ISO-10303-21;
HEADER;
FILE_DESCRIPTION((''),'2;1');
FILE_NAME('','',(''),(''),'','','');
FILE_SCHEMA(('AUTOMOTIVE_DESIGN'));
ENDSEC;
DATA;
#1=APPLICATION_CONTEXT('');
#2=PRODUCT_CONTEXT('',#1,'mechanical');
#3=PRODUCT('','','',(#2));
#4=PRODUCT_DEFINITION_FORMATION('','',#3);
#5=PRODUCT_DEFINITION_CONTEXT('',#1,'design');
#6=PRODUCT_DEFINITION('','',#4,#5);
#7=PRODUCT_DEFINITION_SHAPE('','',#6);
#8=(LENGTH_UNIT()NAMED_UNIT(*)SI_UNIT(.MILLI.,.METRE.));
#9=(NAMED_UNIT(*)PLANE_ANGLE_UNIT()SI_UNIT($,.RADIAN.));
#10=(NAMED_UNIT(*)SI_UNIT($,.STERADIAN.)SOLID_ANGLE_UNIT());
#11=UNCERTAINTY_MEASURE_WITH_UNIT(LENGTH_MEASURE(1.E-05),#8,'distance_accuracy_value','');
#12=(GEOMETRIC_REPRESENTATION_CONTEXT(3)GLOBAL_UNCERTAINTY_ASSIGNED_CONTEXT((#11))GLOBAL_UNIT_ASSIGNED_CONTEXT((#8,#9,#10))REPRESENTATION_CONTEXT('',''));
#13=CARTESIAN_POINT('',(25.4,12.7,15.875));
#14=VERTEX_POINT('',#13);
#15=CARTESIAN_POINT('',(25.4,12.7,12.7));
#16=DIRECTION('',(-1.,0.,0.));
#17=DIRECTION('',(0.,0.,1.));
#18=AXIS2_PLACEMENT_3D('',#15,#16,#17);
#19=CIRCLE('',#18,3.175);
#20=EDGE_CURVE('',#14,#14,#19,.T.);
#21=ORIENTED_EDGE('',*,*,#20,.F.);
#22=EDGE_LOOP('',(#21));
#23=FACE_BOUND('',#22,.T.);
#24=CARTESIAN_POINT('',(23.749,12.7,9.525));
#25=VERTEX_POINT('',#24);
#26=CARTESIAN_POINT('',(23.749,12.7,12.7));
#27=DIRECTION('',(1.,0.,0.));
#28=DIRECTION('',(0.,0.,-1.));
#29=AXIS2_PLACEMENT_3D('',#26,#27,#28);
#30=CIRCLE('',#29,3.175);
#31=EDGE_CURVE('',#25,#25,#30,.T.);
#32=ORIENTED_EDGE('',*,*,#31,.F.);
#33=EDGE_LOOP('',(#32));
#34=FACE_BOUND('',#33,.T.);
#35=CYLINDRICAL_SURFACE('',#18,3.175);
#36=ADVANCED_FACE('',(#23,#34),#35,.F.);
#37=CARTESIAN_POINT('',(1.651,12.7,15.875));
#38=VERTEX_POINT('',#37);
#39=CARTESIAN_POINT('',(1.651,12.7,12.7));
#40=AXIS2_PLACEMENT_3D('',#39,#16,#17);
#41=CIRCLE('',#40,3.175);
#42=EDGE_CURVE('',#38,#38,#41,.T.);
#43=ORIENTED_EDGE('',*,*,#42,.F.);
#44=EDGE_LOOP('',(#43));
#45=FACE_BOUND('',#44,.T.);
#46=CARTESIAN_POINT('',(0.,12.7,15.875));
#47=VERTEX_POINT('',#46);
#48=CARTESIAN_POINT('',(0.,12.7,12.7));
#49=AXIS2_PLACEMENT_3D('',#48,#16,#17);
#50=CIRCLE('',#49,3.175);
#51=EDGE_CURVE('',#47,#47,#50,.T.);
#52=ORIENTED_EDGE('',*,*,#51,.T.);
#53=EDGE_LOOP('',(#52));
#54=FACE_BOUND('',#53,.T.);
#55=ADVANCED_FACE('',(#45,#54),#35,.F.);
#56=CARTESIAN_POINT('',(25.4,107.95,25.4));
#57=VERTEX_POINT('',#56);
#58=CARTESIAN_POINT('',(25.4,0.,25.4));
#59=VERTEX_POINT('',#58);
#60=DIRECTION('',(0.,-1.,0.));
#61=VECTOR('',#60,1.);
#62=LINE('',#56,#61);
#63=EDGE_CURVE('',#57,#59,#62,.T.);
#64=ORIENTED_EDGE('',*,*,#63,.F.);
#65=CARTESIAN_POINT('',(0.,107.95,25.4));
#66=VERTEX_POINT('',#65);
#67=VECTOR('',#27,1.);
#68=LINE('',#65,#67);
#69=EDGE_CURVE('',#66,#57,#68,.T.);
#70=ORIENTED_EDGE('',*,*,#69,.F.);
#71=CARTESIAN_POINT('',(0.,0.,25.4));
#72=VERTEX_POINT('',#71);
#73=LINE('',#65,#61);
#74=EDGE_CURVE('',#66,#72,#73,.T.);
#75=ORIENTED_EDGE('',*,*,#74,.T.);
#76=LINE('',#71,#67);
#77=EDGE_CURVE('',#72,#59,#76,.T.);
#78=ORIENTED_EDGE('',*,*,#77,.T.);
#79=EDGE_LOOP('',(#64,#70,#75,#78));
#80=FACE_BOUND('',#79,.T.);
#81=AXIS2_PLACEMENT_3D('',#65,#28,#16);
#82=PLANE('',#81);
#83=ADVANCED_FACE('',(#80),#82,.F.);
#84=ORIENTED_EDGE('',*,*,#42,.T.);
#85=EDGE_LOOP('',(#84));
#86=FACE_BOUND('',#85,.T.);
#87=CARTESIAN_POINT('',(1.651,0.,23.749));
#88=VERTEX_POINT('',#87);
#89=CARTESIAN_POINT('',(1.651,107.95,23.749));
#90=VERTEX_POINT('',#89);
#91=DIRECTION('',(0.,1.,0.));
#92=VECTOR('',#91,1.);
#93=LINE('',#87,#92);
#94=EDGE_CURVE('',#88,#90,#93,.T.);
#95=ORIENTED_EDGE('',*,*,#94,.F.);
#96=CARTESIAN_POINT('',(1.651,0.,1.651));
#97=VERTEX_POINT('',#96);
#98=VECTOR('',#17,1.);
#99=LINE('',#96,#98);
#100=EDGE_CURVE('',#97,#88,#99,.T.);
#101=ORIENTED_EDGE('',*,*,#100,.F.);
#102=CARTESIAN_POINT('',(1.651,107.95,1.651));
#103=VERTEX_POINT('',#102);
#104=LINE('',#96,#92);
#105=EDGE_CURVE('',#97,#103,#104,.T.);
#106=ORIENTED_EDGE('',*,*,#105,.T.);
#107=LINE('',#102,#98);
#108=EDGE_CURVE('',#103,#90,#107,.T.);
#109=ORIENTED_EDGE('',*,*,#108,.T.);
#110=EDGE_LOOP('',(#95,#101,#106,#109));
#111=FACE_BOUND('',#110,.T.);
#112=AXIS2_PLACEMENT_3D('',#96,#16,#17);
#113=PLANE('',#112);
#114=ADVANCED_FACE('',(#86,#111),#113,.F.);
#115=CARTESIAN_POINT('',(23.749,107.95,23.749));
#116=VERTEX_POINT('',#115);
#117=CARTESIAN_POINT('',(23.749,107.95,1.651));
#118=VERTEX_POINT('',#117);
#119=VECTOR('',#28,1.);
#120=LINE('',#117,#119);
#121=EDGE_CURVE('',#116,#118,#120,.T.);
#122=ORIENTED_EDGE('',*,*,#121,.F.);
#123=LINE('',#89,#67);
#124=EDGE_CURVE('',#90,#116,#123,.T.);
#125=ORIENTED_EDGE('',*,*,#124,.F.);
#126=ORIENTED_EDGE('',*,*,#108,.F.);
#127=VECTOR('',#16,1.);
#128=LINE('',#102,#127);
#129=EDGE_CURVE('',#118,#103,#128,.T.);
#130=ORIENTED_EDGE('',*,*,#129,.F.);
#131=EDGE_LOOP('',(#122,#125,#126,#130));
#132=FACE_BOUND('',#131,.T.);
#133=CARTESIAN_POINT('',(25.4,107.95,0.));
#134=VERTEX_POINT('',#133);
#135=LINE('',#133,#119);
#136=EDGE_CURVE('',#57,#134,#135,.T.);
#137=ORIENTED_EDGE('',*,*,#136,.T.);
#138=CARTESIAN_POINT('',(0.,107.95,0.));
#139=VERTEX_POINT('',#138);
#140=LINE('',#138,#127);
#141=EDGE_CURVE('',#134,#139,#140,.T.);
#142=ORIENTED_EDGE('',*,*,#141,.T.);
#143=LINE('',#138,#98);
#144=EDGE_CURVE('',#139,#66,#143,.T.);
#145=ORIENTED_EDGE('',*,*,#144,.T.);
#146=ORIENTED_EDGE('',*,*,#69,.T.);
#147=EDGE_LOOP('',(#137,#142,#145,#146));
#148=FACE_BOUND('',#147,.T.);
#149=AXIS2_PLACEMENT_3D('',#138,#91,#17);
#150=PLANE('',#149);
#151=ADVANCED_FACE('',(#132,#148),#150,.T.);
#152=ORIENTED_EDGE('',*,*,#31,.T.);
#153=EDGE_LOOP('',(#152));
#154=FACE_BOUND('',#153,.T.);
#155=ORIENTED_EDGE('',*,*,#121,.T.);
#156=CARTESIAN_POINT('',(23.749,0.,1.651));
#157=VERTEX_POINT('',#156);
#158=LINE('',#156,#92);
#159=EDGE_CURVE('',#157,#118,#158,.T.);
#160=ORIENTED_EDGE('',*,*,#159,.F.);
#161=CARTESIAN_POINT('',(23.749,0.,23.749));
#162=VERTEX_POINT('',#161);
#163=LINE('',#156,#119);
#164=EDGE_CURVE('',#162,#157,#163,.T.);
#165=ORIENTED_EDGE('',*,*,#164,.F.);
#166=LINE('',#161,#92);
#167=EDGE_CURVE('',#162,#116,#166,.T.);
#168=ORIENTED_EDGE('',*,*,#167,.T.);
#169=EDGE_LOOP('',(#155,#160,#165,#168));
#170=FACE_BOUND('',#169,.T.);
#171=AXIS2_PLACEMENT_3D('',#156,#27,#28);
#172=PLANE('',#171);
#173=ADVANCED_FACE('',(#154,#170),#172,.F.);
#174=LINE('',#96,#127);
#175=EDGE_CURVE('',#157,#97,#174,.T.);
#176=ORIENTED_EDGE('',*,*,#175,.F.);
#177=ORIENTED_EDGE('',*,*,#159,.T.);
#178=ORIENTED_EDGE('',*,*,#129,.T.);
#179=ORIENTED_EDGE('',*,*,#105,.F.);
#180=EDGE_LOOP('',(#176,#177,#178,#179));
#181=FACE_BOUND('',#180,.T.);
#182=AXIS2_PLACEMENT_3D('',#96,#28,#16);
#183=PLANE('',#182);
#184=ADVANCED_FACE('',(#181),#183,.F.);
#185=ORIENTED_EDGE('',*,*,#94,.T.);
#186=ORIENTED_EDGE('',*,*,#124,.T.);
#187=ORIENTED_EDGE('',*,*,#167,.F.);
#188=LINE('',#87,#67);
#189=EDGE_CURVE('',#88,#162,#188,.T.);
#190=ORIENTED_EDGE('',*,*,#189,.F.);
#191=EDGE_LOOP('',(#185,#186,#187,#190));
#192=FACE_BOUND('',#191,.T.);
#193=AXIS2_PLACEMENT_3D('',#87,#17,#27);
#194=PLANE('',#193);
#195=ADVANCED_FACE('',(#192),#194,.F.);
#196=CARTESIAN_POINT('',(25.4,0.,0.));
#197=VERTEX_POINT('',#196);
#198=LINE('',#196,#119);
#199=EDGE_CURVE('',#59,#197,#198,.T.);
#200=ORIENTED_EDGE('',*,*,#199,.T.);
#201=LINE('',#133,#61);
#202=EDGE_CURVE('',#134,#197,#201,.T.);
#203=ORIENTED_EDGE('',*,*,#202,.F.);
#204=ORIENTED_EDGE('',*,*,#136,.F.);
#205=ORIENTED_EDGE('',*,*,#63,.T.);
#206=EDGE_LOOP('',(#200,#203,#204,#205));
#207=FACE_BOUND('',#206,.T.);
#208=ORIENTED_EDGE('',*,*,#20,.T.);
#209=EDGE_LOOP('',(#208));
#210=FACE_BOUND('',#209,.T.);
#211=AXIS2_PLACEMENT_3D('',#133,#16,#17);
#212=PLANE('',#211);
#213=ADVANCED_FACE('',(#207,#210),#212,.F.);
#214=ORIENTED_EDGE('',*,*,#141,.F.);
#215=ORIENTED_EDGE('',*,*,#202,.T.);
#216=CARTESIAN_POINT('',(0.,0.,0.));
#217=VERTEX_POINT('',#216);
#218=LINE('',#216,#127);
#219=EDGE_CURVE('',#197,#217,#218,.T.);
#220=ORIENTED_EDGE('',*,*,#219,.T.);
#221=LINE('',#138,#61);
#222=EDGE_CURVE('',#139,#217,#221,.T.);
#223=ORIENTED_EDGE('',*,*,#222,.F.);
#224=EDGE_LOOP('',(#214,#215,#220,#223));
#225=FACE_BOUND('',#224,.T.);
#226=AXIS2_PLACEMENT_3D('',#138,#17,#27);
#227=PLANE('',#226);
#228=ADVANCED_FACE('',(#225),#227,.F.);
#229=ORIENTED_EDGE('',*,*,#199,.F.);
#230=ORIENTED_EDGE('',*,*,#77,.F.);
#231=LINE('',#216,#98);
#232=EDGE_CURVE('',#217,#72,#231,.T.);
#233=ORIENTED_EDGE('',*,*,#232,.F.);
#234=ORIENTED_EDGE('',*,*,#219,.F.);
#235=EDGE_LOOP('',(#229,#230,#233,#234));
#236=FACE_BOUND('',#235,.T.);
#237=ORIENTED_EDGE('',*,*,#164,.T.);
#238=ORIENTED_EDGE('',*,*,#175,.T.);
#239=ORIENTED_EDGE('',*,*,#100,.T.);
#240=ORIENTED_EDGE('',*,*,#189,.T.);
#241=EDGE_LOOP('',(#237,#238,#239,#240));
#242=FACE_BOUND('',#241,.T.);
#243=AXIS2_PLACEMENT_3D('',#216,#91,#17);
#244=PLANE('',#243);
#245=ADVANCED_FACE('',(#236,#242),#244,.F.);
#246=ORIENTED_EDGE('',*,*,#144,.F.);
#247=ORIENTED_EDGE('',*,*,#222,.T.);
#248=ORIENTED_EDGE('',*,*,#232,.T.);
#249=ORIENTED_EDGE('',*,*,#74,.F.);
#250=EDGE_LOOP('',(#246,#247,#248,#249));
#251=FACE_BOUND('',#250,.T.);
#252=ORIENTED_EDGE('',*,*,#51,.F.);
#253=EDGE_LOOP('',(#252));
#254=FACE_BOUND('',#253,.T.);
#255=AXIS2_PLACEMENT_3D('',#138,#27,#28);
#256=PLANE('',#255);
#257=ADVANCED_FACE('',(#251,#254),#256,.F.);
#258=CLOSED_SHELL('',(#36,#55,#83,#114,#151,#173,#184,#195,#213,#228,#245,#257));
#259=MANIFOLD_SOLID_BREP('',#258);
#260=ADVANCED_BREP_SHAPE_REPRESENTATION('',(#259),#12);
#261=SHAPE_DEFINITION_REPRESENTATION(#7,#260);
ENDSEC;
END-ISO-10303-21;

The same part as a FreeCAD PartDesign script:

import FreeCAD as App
import Part
import Sketcher
Q = App.Units.Quantity


def add_polygon(sketch, points):
    """Adds a closed chain of lines whose ends are joined by coincident constraints."""
    first, n = sketch.GeometryCount, len(points)
    for a, b in zip(points, points[1:] + points[:1]):
        sketch.addGeometry(Part.LineSegment(App.Vector(*a, 0), App.Vector(*b, 0)), False)
    for i in range(n):
        sketch.addConstraint(Sketcher.Constraint("Coincident", first + i, 2, first + (i + 1) % n, 1))

doc = App.newDocument("Part")
body = doc.addObject("PartDesign::Body", "Body")

# Sketch on XZ plane
sketch1 = doc.addObject("Sketcher::SketchObject", "Sketch")
body.addObject(sketch1)
sketch1.AttachmentSupport = (doc.XZ_Plane, [""])
sketch1.MapMode = "FlatFace"
add_polygon(sketch1, [(0, 0), (0, 25), (25, 25), (25, 0)])  # lines 0-3
sketch1.addConstraint([
    Sketcher.Constraint("Vertical", 0),
    Sketcher.Constraint("Horizontal", 1),
    Sketcher.Constraint("Vertical", 2),
    Sketcher.Constraint("Horizontal", 3),
    Sketcher.Constraint("Coincident", 3, 2, -1, 1),
    Sketcher.Constraint("Equal", 3, 0),
    Sketcher.Constraint("DistanceX", 1, 1, 1, 2, Q("1 in")),
])
pad1 = doc.addObject("PartDesign::Pad", "Pad")
body.addObject(pad1)
pad1.Profile = sketch1
pad1.Length = Q("4.25 in")
pad1.Reversed = True

# Sketch on XZ plane
sketch2 = doc.addObject("Sketcher::SketchObject", "Sketch001")
body.addObject(sketch2)
sketch2.AttachmentSupport = (doc.XZ_Plane, [""])
sketch2.MapMode = "FlatFace"
sketch2.AttachmentOffset = App.Placement(App.Vector(0, 0, -4.25 * 25.4), App.Rotation())
add_polygon(sketch2, [(2, 2), (2, 24), (24, 24), (24, 2)])  # lines 0-3
sketch2.addConstraint([
    Sketcher.Constraint("Vertical", 0),
    Sketcher.Constraint("Horizontal", 1),
    Sketcher.Constraint("Vertical", 2),
    Sketcher.Constraint("Horizontal", 3),
    Sketcher.Constraint("Equal", 3, 0),
    Sketcher.Constraint("DistanceX", 1, 1, 1, 2, Q("0.87 in")),
    Sketcher.Constraint("DistanceX", -1, 1, 0, 2, Q("0.065 in")),
    Sketcher.Constraint("DistanceY", -1, 1, 0, 2, Q("0.935 in")),
])
pocket1 = doc.addObject("PartDesign::Pocket", "Pocket")
body.addObject(pocket1)
pocket1.Profile = sketch2
pocket1.Type = "ThroughAll"
pocket1.Reversed = True

# Sketch on YZ plane
sketch3 = doc.addObject("Sketcher::SketchObject", "Sketch002")
body.addObject(sketch3)
sketch3.AttachmentSupport = (doc.YZ_Plane, [""])
sketch3.MapMode = "FlatFace"
sketch3.addGeometry(Part.Circle(App.Vector(12.7, 12.7, 0), App.Vector(0, 0, 1), 3.2), False)
sketch3.addConstraint([
    Sketcher.Constraint("Diameter", 0, Q("0.25 in")),
    Sketcher.Constraint("DistanceX", -1, 1, 0, 3, Q("0.5 in")),
    Sketcher.Constraint("DistanceY", -1, 1, 0, 3, Q("0.5 in")),
])
pocket2 = doc.addObject("PartDesign::Pocket", "Pocket001")
body.addObject(pocket2)
pocket2.Profile = sketch3
pocket2.Type = "ThroughAll"
pocket2.Reversed = True

doc.recompute()
